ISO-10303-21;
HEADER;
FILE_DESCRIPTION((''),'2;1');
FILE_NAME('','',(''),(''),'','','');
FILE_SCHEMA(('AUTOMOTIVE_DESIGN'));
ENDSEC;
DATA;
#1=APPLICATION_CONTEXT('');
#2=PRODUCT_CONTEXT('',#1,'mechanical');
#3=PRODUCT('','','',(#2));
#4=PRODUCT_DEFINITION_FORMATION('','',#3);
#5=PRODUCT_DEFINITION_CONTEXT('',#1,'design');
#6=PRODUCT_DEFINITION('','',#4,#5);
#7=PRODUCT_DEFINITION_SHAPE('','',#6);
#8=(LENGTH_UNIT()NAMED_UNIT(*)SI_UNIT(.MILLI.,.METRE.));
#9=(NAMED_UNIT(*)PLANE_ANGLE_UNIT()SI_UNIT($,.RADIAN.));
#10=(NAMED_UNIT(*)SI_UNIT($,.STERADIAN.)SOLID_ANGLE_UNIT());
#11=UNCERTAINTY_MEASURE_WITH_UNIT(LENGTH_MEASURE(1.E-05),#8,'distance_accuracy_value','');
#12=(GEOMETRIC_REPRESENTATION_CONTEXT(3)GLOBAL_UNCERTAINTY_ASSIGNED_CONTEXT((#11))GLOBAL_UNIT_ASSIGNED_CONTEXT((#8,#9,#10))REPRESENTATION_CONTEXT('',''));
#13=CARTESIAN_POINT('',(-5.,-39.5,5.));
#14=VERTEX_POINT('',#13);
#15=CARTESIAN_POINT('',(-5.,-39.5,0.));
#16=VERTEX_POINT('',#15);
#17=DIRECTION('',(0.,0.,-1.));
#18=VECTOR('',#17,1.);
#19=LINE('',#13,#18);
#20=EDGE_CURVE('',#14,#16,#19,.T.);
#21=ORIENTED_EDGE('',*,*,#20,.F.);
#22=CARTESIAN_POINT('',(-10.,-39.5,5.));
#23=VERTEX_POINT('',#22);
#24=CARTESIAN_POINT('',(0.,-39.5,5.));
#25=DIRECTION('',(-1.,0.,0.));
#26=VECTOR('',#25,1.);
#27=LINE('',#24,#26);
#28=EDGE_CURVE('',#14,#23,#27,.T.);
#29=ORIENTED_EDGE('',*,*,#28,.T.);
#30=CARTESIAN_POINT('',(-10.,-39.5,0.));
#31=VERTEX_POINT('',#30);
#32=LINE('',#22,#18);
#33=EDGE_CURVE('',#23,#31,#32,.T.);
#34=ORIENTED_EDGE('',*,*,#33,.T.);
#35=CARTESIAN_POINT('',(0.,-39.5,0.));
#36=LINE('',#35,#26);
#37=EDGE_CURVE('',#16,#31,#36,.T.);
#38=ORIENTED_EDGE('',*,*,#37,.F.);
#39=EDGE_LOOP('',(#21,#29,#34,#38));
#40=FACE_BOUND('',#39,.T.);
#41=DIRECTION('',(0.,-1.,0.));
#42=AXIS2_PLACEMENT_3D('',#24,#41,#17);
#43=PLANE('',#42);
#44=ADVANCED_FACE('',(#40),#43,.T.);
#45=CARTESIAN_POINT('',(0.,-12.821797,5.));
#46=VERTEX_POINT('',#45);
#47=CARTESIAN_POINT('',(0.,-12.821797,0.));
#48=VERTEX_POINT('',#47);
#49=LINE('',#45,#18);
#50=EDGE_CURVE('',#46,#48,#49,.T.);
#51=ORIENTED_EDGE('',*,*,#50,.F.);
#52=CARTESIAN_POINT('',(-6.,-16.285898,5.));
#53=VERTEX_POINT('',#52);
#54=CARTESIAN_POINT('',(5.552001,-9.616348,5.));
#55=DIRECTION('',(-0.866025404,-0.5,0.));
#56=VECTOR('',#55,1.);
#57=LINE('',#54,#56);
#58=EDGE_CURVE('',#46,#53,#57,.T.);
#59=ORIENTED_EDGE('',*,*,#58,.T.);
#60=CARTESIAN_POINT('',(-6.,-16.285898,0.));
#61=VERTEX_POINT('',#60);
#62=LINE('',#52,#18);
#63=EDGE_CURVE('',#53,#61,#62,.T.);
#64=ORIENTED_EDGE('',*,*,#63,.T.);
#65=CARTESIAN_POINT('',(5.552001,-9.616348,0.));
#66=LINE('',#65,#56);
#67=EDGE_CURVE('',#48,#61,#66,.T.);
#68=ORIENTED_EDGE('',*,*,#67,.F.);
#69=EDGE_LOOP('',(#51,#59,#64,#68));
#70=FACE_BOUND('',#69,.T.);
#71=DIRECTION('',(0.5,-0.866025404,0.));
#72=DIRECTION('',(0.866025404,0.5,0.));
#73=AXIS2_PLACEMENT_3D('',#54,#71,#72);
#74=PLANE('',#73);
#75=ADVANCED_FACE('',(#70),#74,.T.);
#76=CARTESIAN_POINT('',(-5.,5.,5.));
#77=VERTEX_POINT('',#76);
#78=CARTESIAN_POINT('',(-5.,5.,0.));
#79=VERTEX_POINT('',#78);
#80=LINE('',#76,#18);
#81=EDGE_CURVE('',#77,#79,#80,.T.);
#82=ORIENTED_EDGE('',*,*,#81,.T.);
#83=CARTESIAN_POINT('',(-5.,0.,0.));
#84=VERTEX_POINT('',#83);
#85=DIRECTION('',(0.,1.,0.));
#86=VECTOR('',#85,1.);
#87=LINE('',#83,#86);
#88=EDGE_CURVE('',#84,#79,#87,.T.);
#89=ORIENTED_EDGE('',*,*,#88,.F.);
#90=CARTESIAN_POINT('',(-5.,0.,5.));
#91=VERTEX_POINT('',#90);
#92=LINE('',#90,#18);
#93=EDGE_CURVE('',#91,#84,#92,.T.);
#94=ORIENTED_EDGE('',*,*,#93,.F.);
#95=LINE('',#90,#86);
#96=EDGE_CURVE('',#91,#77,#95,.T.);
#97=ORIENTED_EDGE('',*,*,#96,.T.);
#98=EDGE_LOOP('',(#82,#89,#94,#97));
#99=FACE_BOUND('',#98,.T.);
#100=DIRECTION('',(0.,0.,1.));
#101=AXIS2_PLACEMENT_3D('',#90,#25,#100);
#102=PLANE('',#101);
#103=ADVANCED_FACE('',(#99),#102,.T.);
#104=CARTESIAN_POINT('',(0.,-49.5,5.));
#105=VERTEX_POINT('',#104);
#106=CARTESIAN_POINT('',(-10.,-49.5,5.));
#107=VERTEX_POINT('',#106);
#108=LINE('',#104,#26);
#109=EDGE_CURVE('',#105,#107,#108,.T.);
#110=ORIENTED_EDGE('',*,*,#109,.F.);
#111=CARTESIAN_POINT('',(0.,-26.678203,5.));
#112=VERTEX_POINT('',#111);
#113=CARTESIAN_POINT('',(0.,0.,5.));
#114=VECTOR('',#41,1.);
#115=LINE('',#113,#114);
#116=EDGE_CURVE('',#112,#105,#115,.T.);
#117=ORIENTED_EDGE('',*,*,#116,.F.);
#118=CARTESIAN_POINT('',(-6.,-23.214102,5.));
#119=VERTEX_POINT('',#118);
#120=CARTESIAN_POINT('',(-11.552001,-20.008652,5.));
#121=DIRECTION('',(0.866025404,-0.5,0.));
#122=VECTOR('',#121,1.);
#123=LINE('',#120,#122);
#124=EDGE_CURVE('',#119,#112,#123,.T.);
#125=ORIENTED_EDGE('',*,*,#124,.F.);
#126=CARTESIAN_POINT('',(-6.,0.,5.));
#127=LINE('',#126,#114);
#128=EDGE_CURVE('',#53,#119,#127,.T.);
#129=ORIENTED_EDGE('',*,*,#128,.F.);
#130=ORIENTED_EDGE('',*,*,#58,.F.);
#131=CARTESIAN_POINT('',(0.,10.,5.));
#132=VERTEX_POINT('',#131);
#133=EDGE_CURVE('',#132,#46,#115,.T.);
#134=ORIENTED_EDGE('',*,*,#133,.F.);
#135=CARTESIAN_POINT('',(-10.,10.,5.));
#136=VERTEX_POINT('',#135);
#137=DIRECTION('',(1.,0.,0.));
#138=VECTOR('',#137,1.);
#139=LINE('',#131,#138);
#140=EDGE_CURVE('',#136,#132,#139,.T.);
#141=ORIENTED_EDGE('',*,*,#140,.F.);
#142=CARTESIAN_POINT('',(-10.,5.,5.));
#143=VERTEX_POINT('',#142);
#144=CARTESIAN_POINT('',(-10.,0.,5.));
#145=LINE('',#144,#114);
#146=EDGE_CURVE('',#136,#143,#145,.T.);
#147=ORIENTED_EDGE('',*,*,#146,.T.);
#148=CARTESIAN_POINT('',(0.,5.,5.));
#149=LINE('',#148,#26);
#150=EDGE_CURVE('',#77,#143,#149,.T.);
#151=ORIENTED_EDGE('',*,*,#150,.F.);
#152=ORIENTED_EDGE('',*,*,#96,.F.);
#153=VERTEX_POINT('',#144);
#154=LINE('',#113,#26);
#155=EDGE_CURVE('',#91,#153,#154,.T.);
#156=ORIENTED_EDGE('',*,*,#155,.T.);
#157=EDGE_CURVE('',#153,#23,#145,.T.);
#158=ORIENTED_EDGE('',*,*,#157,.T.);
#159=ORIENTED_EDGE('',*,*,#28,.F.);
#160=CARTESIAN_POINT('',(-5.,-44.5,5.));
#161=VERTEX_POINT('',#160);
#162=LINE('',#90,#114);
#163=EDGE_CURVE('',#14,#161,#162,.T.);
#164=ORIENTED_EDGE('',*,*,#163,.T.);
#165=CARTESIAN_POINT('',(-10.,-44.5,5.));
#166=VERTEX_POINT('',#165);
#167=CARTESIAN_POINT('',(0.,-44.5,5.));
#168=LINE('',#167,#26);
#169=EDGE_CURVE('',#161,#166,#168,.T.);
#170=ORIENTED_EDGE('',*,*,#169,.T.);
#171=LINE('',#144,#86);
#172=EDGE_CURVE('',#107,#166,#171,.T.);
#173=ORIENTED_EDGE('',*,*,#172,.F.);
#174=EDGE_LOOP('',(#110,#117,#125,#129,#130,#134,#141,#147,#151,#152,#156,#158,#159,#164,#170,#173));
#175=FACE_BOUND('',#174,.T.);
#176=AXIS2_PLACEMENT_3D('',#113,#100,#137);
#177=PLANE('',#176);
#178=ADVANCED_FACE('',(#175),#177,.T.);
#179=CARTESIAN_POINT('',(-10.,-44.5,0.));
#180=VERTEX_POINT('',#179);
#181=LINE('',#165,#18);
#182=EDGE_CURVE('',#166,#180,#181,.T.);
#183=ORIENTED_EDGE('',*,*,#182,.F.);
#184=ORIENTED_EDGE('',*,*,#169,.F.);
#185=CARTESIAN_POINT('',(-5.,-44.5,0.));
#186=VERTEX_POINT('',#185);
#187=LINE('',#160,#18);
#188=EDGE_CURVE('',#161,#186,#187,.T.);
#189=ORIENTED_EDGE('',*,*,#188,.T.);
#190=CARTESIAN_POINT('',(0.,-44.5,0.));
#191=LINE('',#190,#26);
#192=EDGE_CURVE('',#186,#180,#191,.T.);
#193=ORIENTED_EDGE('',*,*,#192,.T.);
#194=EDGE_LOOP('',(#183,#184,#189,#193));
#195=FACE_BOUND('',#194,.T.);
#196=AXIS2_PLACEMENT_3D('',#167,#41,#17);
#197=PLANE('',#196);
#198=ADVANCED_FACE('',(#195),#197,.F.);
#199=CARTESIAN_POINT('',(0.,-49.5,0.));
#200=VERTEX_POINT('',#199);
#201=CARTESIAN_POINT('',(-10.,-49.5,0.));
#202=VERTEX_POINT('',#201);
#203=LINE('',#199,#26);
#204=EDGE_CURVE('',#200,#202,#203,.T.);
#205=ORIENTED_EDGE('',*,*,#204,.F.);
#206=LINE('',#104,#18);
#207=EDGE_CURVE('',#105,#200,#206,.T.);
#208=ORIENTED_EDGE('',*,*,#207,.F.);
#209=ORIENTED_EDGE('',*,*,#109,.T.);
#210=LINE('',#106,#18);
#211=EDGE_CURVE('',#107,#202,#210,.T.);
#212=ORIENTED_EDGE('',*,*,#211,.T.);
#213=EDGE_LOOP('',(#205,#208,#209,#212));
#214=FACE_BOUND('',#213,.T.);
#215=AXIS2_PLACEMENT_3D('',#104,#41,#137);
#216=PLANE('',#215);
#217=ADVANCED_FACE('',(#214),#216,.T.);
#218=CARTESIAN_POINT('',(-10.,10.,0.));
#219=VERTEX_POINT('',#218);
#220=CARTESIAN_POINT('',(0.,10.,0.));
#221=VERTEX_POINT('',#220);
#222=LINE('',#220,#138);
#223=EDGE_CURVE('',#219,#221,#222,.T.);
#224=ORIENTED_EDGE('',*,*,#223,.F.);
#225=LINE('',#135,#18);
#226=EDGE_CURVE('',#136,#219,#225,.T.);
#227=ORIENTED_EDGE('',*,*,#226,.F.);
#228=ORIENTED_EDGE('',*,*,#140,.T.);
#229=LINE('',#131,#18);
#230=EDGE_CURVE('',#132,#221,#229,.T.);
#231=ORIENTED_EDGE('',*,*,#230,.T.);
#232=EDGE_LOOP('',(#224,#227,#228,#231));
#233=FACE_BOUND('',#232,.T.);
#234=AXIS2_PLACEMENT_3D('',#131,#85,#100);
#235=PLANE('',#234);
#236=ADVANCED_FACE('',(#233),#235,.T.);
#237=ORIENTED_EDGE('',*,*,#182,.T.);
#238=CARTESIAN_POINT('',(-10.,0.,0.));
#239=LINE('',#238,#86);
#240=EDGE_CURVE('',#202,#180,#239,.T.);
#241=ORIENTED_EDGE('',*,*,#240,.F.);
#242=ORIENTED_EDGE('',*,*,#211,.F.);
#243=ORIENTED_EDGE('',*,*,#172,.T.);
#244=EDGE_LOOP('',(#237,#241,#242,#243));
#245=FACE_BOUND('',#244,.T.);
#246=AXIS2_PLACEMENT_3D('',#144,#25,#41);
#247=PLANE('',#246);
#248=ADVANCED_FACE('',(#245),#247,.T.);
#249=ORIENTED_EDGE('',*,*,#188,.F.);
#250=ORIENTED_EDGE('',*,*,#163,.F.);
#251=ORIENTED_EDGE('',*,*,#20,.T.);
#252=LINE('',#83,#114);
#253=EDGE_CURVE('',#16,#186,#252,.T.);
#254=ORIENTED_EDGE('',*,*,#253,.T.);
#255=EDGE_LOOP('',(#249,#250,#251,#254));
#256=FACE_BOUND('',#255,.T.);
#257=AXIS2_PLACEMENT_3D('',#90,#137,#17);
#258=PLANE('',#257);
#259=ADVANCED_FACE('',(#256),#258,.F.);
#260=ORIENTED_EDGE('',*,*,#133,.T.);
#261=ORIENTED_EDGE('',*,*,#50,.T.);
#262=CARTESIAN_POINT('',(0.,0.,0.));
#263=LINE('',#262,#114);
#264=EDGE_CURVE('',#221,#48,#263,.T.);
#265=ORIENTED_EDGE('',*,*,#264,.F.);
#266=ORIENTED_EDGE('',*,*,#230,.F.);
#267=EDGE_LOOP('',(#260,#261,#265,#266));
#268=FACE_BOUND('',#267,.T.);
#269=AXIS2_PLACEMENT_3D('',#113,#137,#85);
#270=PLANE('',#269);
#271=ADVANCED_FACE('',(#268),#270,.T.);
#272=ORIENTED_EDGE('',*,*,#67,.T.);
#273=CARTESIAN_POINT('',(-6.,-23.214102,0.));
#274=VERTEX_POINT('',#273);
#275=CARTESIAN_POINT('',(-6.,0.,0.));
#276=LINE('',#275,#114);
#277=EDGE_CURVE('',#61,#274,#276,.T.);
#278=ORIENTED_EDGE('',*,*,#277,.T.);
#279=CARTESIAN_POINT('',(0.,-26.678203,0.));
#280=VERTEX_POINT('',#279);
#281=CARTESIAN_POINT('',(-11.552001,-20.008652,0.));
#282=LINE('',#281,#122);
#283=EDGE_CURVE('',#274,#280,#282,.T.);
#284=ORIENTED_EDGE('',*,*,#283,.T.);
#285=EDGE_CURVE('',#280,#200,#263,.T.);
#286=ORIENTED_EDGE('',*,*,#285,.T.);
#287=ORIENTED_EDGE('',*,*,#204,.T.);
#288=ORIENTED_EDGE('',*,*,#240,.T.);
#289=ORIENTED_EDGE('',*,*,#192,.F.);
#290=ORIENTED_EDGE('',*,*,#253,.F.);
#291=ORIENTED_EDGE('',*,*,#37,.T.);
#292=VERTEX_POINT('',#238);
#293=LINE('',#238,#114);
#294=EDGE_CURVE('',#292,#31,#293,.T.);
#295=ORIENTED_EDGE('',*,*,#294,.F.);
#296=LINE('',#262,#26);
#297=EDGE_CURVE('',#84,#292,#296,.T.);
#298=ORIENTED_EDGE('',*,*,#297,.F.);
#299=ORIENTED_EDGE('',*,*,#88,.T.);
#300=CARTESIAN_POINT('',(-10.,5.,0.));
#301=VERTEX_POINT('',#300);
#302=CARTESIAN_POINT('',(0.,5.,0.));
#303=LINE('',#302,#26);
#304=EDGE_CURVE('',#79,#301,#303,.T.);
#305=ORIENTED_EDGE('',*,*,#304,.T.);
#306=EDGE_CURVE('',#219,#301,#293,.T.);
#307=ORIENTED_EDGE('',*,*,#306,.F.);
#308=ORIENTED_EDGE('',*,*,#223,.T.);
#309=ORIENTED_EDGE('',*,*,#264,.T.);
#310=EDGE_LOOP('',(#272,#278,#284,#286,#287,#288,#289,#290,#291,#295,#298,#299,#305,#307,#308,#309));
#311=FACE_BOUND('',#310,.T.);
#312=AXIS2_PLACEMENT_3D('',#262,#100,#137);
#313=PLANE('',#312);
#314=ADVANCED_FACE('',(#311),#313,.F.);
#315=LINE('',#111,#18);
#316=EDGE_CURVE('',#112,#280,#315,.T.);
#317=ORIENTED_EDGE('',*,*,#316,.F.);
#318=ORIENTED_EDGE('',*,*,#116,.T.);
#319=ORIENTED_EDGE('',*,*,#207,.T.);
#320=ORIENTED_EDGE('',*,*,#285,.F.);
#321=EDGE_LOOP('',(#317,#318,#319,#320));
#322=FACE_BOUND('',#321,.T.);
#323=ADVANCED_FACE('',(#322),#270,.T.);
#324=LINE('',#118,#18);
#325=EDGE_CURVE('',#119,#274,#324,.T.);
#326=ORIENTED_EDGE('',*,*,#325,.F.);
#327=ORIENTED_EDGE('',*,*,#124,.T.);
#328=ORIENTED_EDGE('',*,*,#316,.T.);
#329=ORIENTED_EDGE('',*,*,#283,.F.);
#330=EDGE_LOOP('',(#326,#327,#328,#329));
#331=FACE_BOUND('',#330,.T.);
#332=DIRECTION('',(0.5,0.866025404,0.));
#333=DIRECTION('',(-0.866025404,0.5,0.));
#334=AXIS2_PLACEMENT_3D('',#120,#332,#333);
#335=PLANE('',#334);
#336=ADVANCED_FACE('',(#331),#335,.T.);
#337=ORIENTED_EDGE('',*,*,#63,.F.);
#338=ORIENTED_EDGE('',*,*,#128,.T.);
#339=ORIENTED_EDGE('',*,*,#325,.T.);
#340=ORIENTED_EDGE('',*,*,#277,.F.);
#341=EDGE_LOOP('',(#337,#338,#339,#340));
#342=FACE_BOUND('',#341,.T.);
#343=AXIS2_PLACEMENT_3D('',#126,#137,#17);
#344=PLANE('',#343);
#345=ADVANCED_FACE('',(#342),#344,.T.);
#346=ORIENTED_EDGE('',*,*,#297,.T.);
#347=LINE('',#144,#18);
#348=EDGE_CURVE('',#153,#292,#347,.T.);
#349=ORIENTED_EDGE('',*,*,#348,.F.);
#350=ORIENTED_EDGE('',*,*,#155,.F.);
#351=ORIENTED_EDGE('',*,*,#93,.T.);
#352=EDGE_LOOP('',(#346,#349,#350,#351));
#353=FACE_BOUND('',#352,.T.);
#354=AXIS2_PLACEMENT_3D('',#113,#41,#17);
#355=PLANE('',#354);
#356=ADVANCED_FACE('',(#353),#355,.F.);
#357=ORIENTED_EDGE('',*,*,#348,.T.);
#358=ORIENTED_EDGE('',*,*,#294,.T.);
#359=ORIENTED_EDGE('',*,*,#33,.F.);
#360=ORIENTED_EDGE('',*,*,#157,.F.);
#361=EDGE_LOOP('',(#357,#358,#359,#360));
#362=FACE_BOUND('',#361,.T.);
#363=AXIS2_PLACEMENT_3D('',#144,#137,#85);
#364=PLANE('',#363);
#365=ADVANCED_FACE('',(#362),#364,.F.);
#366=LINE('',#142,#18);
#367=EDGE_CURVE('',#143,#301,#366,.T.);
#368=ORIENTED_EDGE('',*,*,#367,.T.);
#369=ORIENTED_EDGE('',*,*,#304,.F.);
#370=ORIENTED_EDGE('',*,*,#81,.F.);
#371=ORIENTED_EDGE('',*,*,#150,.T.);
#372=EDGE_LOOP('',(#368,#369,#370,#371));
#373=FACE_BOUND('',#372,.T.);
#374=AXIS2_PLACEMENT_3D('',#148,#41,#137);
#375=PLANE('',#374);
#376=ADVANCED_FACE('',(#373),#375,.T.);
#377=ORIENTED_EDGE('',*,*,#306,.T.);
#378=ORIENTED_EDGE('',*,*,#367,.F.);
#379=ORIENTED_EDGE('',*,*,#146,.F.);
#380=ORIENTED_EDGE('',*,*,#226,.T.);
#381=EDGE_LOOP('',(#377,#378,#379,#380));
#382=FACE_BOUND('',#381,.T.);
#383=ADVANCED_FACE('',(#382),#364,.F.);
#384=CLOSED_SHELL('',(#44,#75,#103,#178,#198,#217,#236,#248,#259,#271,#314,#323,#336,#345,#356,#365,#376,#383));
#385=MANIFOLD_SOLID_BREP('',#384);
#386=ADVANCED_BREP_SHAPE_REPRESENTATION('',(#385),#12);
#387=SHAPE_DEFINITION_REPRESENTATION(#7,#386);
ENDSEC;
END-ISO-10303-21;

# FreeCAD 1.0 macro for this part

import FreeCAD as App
import Part
import Sketcher
from FreeCAD import Vector
Q = App.Units.Quantity


def add_polygon(sketch, points):
    """Adds a closed chain of lines whose ends are joined by coincident constraints."""
    first, n = sketch.GeometryCount, len(points)
    for a, b in zip(points, points[1:] + points[:1]):
        sketch.addGeometry(Part.LineSegment(App.Vector(*a, 0), App.Vector(*b, 0)), False)
    for i in range(n):
        sketch.addConstraint(Sketcher.Constraint("Coincident", first + i, 2, first + (i + 1) % n, 1))

doc = App.newDocument("Part")
body = doc.addObject("PartDesign::Body", "Body")

# Sketch on XY plane
sketch1 = body.newObject("Sketcher::SketchObject", "Sketch")
sketch1.AttachmentSupport = (doc.getObject("XY_Plane"), [""])
sketch1.MapMode = "FlatFace"
add_polygon(sketch1, [(0, -13), (0, 10), (-10, 10), (-10, 5), (-5, 5), (-5, 0), (-10, 0), (-10, -40), (-5, -40), (-5, -44), (-10, -44), (-10, -50), (0, -50), (0, -27), (-6, -23), (-6, -16)])  # lines 0-15
sketch1.addConstraint(Sketcher.Constraint("Vertical", 0))
sketch1.addConstraint(Sketcher.Constraint("Horizontal", 1))
sketch1.addConstraint(Sketcher.Constraint("Vertical", 2))
sketch1.addConstraint(Sketcher.Constraint("Horizontal", 3))
sketch1.addConstraint(Sketcher.Constraint("Vertical", 4))
sketch1.addConstraint(Sketcher.Constraint("Horizontal", 5))
sketch1.addConstraint(Sketcher.Constraint("Vertical", 6))
sketch1.addConstraint(Sketcher.Constraint("Horizontal", 7))
sketch1.addConstraint(Sketcher.Constraint("Vertical", 8))
sketch1.addConstraint(Sketcher.Constraint("Horizontal", 9))
sketch1.addConstraint(Sketcher.Constraint("Vertical", 10))
sketch1.addConstraint(Sketcher.Constraint("Horizontal", 11))
sketch1.addConstraint(Sketcher.Constraint("Vertical", 12))
sketch1.addConstraint(Sketcher.Constraint("Vertical", 14))
sketch1.addConstraint(Sketcher.Constraint("PointOnObject", 0, 2, -2))
sketch1.addConstraint(Sketcher.Constraint("PointOnObject", 4, 2, -1))
sketch1.addConstraint(Sketcher.Constraint("PointOnObject", 11, 2, -2))
sketch1.addConstraint(Sketcher.Constraint("Vertical", 2, 2, 5, 2))
sketch1.addConstraint(Sketcher.Constraint("Vertical", 4, 2, 7, 2))
sketch1.addConstraint(Sketcher.Constraint("Vertical", 6, 2, 9, 2))
sketch1.addConstraint(Sketcher.Constraint("Equal", 9, 2))
sketch1.addConstraint(Sketcher.Constraint("Equal", 2, 4))
sketch1.addConstraint(Sketcher.Constraint("Equal", 4, 8))
sketch1.addConstraint(Sketcher.Constraint("Equal", 8, 10))
sketch1.addConstraint(Sketcher.Constraint("Equal", 0, 12))
sketch1.addConstraint(Sketcher.Constraint("Equal", 13, 15))
sketch1.addConstraint(Sketcher.Constraint("DistanceX", 1, 2, 1, 1, Q("10 mm")))
sketch1.addConstraint(Sketcher.Constraint("DistanceX", 3, 1, 3, 2, Q("5 mm")))
sketch1.addConstraint(Sketcher.Constraint("Angle", 13, Q("150 deg")))
sketch1.addConstraint(Sketcher.Constraint("DistanceY", 6, 2, 6, 1, Q("39.5 mm")))
sketch1.addConstraint(Sketcher.Constraint("DistanceX", 13, 2, -1, 1, Q("6 mm")))
sketch1.addConstraint(Sketcher.Constraint("DistanceY", 13, 2, -1, 1, Q("23.214102 mm")))
pad1 = body.newObject("PartDesign::Pad", "Pad")
pad1.Profile = sketch1
pad1.Length = 5

doc.recompute()
